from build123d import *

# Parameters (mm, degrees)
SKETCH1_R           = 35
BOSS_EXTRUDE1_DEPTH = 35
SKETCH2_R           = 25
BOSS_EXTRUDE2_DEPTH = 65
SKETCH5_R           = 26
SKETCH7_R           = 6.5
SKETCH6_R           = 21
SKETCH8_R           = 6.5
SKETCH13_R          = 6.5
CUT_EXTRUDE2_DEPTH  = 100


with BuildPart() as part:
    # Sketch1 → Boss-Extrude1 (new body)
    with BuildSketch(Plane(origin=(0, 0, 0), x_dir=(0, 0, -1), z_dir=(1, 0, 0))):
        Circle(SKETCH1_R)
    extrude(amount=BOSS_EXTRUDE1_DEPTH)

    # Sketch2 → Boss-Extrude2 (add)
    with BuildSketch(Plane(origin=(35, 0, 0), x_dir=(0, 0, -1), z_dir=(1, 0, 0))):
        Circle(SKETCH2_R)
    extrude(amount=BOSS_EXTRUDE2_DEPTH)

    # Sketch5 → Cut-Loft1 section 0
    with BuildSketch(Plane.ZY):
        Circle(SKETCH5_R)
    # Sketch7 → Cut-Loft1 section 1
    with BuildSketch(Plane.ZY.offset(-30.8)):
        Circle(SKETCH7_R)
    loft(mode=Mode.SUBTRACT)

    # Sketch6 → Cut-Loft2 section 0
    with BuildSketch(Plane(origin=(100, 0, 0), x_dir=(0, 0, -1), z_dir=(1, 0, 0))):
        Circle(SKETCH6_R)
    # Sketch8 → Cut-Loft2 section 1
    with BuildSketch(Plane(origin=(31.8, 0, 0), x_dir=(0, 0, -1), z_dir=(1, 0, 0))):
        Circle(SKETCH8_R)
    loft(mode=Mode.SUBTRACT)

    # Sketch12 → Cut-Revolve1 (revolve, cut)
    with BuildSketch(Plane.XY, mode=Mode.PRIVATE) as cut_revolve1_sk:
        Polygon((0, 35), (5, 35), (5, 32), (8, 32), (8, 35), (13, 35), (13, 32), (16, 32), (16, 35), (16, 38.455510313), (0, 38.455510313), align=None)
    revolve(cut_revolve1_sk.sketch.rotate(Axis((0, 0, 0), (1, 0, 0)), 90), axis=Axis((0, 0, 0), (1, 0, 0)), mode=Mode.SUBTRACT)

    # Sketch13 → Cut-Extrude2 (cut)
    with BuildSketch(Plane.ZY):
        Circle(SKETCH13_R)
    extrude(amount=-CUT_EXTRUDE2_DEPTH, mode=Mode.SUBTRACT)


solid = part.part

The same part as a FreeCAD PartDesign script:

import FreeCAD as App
import Part
import Sketcher
from FreeCAD import Vector


def add_polygon(sketch, points):
    """Adds a closed chain of lines whose ends are joined by coincident constraints."""
    first, n = sketch.GeometryCount, len(points)
    for a, b in zip(points, points[1:] + points[:1]):
        sketch.addGeometry(Part.LineSegment(App.Vector(*a, 0), App.Vector(*b, 0)), False)
    for i in range(n):
        sketch.addConstraint(Sketcher.Constraint("Coincident", first + i, 2, first + (i + 1) % n, 1))

doc = App.newDocument("Part")
body = doc.addObject("PartDesign::Body", "Body")

sketch1 = doc.addObject("Sketcher::SketchObject", "Sketch")
body.addObject(sketch1)
sketch1.AttachmentSupport = (doc.YZ_Plane, [""])
sketch1.MapMode = "FlatFace"
sketch1.addGeometry(Part.Circle(Vector(0, 0, 0), Vector(0, 0, 1), 35), False)
sketch1.addConstraint([
    Sketcher.Constraint("Coincident", 0, 3, -1, 1),
    Sketcher.Constraint("Diameter", 0, 70.0),
])
pad1 = doc.addObject("PartDesign::Pad", "Pad")
body.addObject(pad1)
pad1.Profile = sketch1
pad1.Length = 35

sketch2 = doc.addObject("Sketcher::SketchObject", "Sketch001")
body.addObject(sketch2)
sketch2.AttachmentSupport = (doc.YZ_Plane, [""])
sketch2.MapMode = "FlatFace"
sketch2.AttachmentOffset = App.Placement(Vector(0, 0, 35), App.Rotation())
sketch2.addGeometry(Part.Circle(Vector(0, 0, 0), Vector(0, 0, 1), 25), False)
sketch2.addConstraint([
    Sketcher.Constraint("Coincident", 0, 3, -1, 1),
    Sketcher.Constraint("Diameter", 0, 50.0),
])
pad2 = doc.addObject("PartDesign::Pad", "Pad001")
body.addObject(pad2)
pad2.Profile = sketch2
pad2.Length = 65

sketch3 = doc.addObject("Sketcher::SketchObject", "Sketch002")
body.addObject(sketch3)
sketch3.AttachmentSupport = (doc.YZ_Plane, [""])
sketch3.MapMode = "FlatFace"
sketch3.addGeometry(Part.Circle(Vector(0, 0, 0), Vector(0, 0, 1), 26), False)
sketch3.addConstraint([
    Sketcher.Constraint("Coincident", 0, 3, -1, 1),
    Sketcher.Constraint("Diameter", 0, 52.0),
])

sketch4 = doc.addObject("Sketcher::SketchObject", "Sketch003")
body.addObject(sketch4)
sketch4.AttachmentSupport = (doc.YZ_Plane, [""])
sketch4.MapMode = "FlatFace"
sketch4.AttachmentOffset = App.Placement(Vector(0, 0, 30.8), App.Rotation())
sketch4.addGeometry(Part.Circle(Vector(0, 0, 0), Vector(0, 0, 1), 6.5), False)
sketch4.addConstraint([
    Sketcher.Constraint("Coincident", 0, 3, -1, 1),
    Sketcher.Constraint("Diameter", 0, 13.0),
])

subtractiveloft = doc.addObject("PartDesign::SubtractiveLoft", "SubtractiveLoft")
body.addObject(subtractiveloft)
subtractiveloft.Profile = sketch3
subtractiveloft.Sections = [sketch4]

sketch5 = doc.addObject("Sketcher::SketchObject", "Sketch004")
body.addObject(sketch5)
sketch5.AttachmentSupport = (doc.YZ_Plane, [""])
sketch5.MapMode = "FlatFace"
sketch5.AttachmentOffset = App.Placement(Vector(0, 0, 100), App.Rotation())
sketch5.addGeometry(Part.Circle(Vector(0, 0, 0), Vector(0, 0, 1), 21), False)
sketch5.addConstraint([
    Sketcher.Constraint("Coincident", 0, 3, -1, 1),
    Sketcher.Constraint("Diameter", 0, 42.0),
])

sketch6 = doc.addObject("Sketcher::SketchObject", "Sketch005")
body.addObject(sketch6)
sketch6.AttachmentSupport = (doc.YZ_Plane, [""])
sketch6.MapMode = "FlatFace"
sketch6.AttachmentOffset = App.Placement(Vector(0, 0, 31.8), App.Rotation())
sketch6.addGeometry(Part.Circle(Vector(0, 0, 0), Vector(0, 0, 1), 6.5), False)
sketch6.addConstraint([
    Sketcher.Constraint("Coincident", 0, 3, -1, 1),
    Sketcher.Constraint("Diameter", 0, 13.0),
])

subtractiveloft2 = doc.addObject("PartDesign::SubtractiveLoft", "SubtractiveLoft001")
body.addObject(subtractiveloft2)
subtractiveloft2.Profile = sketch5
subtractiveloft2.Sections = [sketch6]

sketch7 = doc.addObject("Sketcher::SketchObject", "Sketch006")
body.addObject(sketch7)
sketch7.AttachmentSupport = (doc.XY_Plane, [""])
sketch7.MapMode = "FlatFace"
add_polygon(sketch7, [(0, 35), (5, 35), (5, 32), (8, 32), (8, 35), (13, 35), (13, 32), (16, 32), (16, 38.45551), (0, 38.45551)])
sketch7.addConstraint([
    Sketcher.Constraint("Horizontal", 0),
    Sketcher.Constraint("Vertical", 1),
    Sketcher.Constraint("Horizontal", 2),
    Sketcher.Constraint("Vertical", 3),
    Sketcher.Constraint("Horizontal", 4),
    Sketcher.Constraint("Vertical", 5),
    Sketcher.Constraint("Horizontal", 6),
    Sketcher.Constraint("Vertical", 7),
    Sketcher.Constraint("Horizontal", 8),
    Sketcher.Constraint("Vertical", 9),
    Sketcher.Constraint("PointOnObject", 8, 2, -2),
    Sketcher.Constraint("Horizontal", 0, 2, 3, 2),
    Sketcher.Constraint("Horizontal", 2, 2, 5, 2),
    Sketcher.Constraint("Equal", 0, 4),
    Sketcher.Constraint("Equal", 2, 6),
    Sketcher.Constraint("Equal", 6, 1),
    Sketcher.Constraint("DistanceX", 0, 1, 0, 2, 5.0),
    Sketcher.Constraint("DistanceX", 2, 1, 2, 2, 3.0),
    Sketcher.Constraint("DistanceY", -1, 1, 0, 2, 35.0),
    Sketcher.Constraint("DistanceY", 7, 1, 7, 2, 6.45551),
])
groove = doc.addObject("PartDesign::Groove", "Groove")
body.addObject(groove)
groove.Profile = sketch7
groove.ReferenceAxis = (sketch7, ["H_Axis"])
groove.Angle = 360

sketch8 = doc.addObject("Sketcher::SketchObject", "Sketch007")
body.addObject(sketch8)
sketch8.AttachmentSupport = (doc.YZ_Plane, [""])
sketch8.MapMode = "FlatFace"
sketch8.addGeometry(Part.Circle(Vector(0, 0, 0), Vector(0, 0, 1), 6.5), False)
sketch8.addConstraint([
    Sketcher.Constraint("Coincident", 0, 3, -1, 1),
    Sketcher.Constraint("Diameter", 0, 13.0),
])
pocket1 = doc.addObject("PartDesign::Pocket", "Pocket")
body.addObject(pocket1)
pocket1.Profile = sketch8
pocket1.Length = 100
pocket1.Reversed = True

doc.recompute()
